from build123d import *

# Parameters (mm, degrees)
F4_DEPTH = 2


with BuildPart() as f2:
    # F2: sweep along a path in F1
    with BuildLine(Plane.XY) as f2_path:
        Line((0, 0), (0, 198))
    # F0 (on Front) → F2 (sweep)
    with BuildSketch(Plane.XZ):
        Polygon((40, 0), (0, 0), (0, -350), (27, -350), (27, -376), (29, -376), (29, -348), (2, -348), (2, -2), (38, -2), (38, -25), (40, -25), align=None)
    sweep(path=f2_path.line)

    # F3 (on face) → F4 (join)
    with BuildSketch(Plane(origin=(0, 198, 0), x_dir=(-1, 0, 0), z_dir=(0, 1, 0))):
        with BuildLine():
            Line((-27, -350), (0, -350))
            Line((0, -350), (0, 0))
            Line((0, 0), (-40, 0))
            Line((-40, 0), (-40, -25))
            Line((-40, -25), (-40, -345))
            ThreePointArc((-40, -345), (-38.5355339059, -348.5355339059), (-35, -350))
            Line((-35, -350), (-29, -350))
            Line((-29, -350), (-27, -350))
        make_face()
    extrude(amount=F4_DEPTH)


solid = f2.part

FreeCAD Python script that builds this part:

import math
import FreeCAD as App
import Part
import Sketcher
from FreeCAD import Vector
Q = App.Units.Quantity


def add_polygon(sketch, points):
    """Adds a closed chain of lines whose ends are joined by coincident constraints."""
    first, n = sketch.GeometryCount, len(points)
    for a, b in zip(points, points[1:] + points[:1]):
        sketch.addGeometry(Part.LineSegment(App.Vector(*a, 0), App.Vector(*b, 0)), False)
    for i in range(n):
        sketch.addConstraint(Sketcher.Constraint("Coincident", first + i, 2, first + (i + 1) % n, 1))

doc = App.newDocument("Part")
params = doc.addObject("Spreadsheet::Sheet", "Params")
for row, (alias, value) in enumerate([
    ("sketch1_width", "40 mm"),
    ("sketch1_width2", "27 mm"),
    ("sketch1_width3", "2 mm"),
    ("sketch1_height", "350 mm"),
    ("sketch1_height2", "26 mm"),
    ("sketch2_height", "198 mm"),
    ("sketch3_radius", "5 mm"),
    ("sketch3_width", "40 mm"),
    ("sketch3_height", "350 mm"),
    ("pad1_length", "2 mm"),
], start=1):
    params.set(f"A{row}", alias)
    params.set(f"B{row}", "=" + value)
    params.setAlias(f"B{row}", alias)

body = doc.addObject("PartDesign::Body", "Body")

sketch1 = body.newObject("Sketcher::SketchObject", "Sketch")
sketch1.AttachmentSupport = (doc.getObject("XZ_Plane"), [""])
sketch1.MapMode = "FlatFace"
add_polygon(sketch1, [(40, 0), (0, 0), (0, -350), (27, -350), (27, -376), (29, -376), (29, -348), (2, -348), (2, -2), (38, -2), (38, -25), (40, -25)])
sketch1.addConstraint(Sketcher.Constraint("Horizontal", 0))
sketch1.addConstraint(Sketcher.Constraint("Vertical", 1))
sketch1.addConstraint(Sketcher.Constraint("Horizontal", 2))
sketch1.addConstraint(Sketcher.Constraint("Vertical", 3))
sketch1.addConstraint(Sketcher.Constraint("Horizontal", 4))
sketch1.addConstraint(Sketcher.Constraint("Vertical", 5))
sketch1.addConstraint(Sketcher.Constraint("Horizontal", 6))
sketch1.addConstraint(Sketcher.Constraint("Vertical", 7))
sketch1.addConstraint(Sketcher.Constraint("Horizontal", 8))
sketch1.addConstraint(Sketcher.Constraint("Vertical", 9))
sketch1.addConstraint(Sketcher.Constraint("Horizontal", 10))
sketch1.addConstraint(Sketcher.Constraint("Vertical", 11))
sketch1.addConstraint(Sketcher.Constraint("Coincident", 0, 2, -1, 1))
sketch1.addConstraint(Sketcher.Constraint("Equal", 2, 6))
sketch1.addConstraint(Sketcher.Constraint("Equal", 4, 10))
sketch1.addConstraint(Sketcher.Constraint("DistanceX", 0, 2, 0, 1, Q("40 mm")))
sketch1.addConstraint(Sketcher.Constraint("DistanceX", 2, 1, 2, 2, Q("27 mm")))
sketch1.addConstraint(Sketcher.Constraint("DistanceX", 4, 1, 4, 2, Q("2 mm")))
sketch1.addConstraint(Sketcher.Constraint("DistanceY", 1, 2, 1, 1, Q("350 mm")))
sketch1.addConstraint(Sketcher.Constraint("DistanceY", 3, 2, 3, 1, Q("26 mm")))
sketch1.addConstraint(Sketcher.Constraint("DistanceY", 5, 1, 5, 2, Q("28 mm")))
sketch1.addConstraint(Sketcher.Constraint("DistanceY", 7, 1, 7, 2, Q("346 mm")))
sketch1.addConstraint(Sketcher.Constraint("DistanceY", 9, 2, 9, 1, Q("23 mm")))
sketch1.setExpression("Constraints[27]", "Params.sketch1_width")
sketch1.setExpression("Constraints[28]", "Params.sketch1_width2")
sketch1.setExpression("Constraints[29]", "Params.sketch1_width3")
sketch1.setExpression("Constraints[30]", "Params.sketch1_height")
sketch1.setExpression("Constraints[31]", "Params.sketch1_height2")

sketch2 = body.newObject("Sketcher::SketchObject", "Sketch001")
sketch2.AttachmentSupport = (doc.getObject("XY_Plane"), [""])
sketch2.MapMode = "FlatFace"
sketch2.addGeometry(Part.LineSegment(Vector(0, 0, 0), Vector(0, 198, 0)), False)
sketch2.addConstraint(Sketcher.Constraint("Vertical", 0))
sketch2.addConstraint(Sketcher.Constraint("Coincident", 0, 1, -1, 1))
sketch2.addConstraint(Sketcher.Constraint("DistanceY", 0, 1, 0, 2, Q("198 mm")))
sketch2.setExpression("Constraints[2]", "Params.sketch2_height")
doc.recompute()

additivepipe = body.newObject("PartDesign::AdditivePipe", "AdditivePipe")
additivepipe.Profile = sketch1
additivepipe.Spine = (sketch2, ["Edge1"])

sketch3 = body.newObject("Sketcher::SketchObject", "Sketch002")
sketch3.AttachmentSupport = (doc.getObject("XZ_Plane"), [""])
sketch3.MapMode = "FlatFace"
sketch3.AttachmentOffset = App.Placement(Vector(0, 0, -198), App.Rotation())
sketch3.addGeometry(Part.LineSegment(Vector(0, -350, 0), Vector(0, 0, 0)), False)
sketch3.addGeometry(Part.LineSegment(Vector(0, 0, 0), Vector(40, 0, 0)), False)
sketch3.addGeometry(Part.LineSegment(Vector(40, 0, 0), Vector(40, -345, 0)), False)
sketch3.addGeometry(Part.ArcOfCircle(Part.Circle(Vector(35, -345, 0), Vector(0, 0, 1), 5), math.radians(-90), math.radians(0)), False)
sketch3.addGeometry(Part.LineSegment(Vector(35, -350, 0), Vector(0, -350, 0)), False)
sketch3.addConstraint(Sketcher.Constraint("Coincident", 0, 2, 1, 1))
sketch3.addConstraint(Sketcher.Constraint("Coincident", 1, 2, 2, 1))
sketch3.addConstraint(Sketcher.Constraint("Tangent", 2, 2, 3, 2))
sketch3.addConstraint(Sketcher.Constraint("Tangent", 3, 1, 4, 1))
sketch3.addConstraint(Sketcher.Constraint("Coincident", 4, 2, 0, 1))
sketch3.addConstraint(Sketcher.Constraint("Vertical", 0))
sketch3.addConstraint(Sketcher.Constraint("Horizontal", 1))
sketch3.addConstraint(Sketcher.Constraint("Vertical", 2))
sketch3.addConstraint(Sketcher.Constraint("Horizontal", 4))
sketch3.addConstraint(Sketcher.Constraint("Coincident", 0, 2, -1, 1))
sketch3.addConstraint(Sketcher.Constraint("Radius", 3, Q("5 mm")))
sketch3.addConstraint(Sketcher.Constraint("DistanceX", 1, 1, 1, 2, Q("40 mm")))
sketch3.addConstraint(Sketcher.Constraint("DistanceY", 0, 1, 0, 2, Q("350 mm")))
sketch3.setExpression("Constraints[10]", "Params.sketch3_radius")
sketch3.setExpression("Constraints[11]", "Params.sketch3_width")
sketch3.setExpression("Constraints[12]", "Params.sketch3_height")
pad1 = body.newObject("PartDesign::Pad", "Pad")
pad1.Profile = sketch3
pad1.setExpression("Length", "Params.pad1_length")
pad1.Reversed = True

doc.recompute()
